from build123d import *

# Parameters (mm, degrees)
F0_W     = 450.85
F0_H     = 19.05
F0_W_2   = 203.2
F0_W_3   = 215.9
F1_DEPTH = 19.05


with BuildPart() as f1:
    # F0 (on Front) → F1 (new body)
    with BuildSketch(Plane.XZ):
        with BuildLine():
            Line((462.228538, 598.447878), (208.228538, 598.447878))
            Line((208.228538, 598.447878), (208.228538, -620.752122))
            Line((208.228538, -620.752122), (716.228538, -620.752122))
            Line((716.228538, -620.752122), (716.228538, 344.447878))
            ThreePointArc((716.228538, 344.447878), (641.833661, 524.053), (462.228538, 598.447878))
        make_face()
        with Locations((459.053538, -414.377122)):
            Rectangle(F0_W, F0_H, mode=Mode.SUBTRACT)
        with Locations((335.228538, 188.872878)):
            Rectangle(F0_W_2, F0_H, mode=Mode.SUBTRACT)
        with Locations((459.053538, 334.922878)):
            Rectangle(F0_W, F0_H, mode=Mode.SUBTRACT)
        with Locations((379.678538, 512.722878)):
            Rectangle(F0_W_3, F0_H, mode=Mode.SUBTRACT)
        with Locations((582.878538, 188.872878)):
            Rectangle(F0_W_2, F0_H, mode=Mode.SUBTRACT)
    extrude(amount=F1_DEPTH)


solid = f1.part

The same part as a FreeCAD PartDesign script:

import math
import FreeCAD as App
import Part
import Sketcher
from FreeCAD import Vector
Q = App.Units.Quantity

doc = App.newDocument("Part")
params = doc.addObject("Spreadsheet::Sheet", "Params")
for row, (alias, value) in enumerate([
    ("sketch1_radius", "10 in"),
    ("sketch1_width", "10 in"),
    ("sketch1_width2", "8 in"),
    ("sketch1_height", "48 in"),
    ("sketch1_width3", "8.5 in"),
    ("pad1_length", "0.75 in"),
], start=1):
    params.set(f"A{row}", alias)
    params.set(f"B{row}", "=" + value)
    params.setAlias(f"B{row}", alias)

body = doc.addObject("PartDesign::Body", "Body")

sketch1 = body.newObject("Sketcher::SketchObject", "Sketch")
sketch1.AttachmentSupport = (doc.getObject("XZ_Plane"), [""])
sketch1.MapMode = "FlatFace"
sketch1.addGeometry(Part.LineSegment(Vector(462, 598, 0), Vector(208, 598, 0)), False)
sketch1.addGeometry(Part.LineSegment(Vector(208, 598, 0), Vector(208, -621, 0)), False)
sketch1.addGeometry(Part.LineSegment(Vector(208, -621, 0), Vector(716, -621, 0)), False)
sketch1.addGeometry(Part.LineSegment(Vector(716, -621, 0), Vector(716, 344, 0)), False)
sketch1.addGeometry(Part.ArcOfCircle(Part.Circle(Vector(462, 344, 0), Vector(0, 0, 1), 254), math.radians(0), math.radians(90)), False)
sketch1.addGeometry(Part.LineSegment(Vector(684, -424, 0), Vector(234, -424, 0)), False)
sketch1.addGeometry(Part.LineSegment(Vector(234, -424, 0), Vector(234, -405, 0)), False)
sketch1.addGeometry(Part.LineSegment(Vector(234, -405, 0), Vector(684, -405, 0)), False)
sketch1.addGeometry(Part.LineSegment(Vector(684, -405, 0), Vector(684, -424, 0)), False)
sketch1.addGeometry(Part.LineSegment(Vector(437, 179, 0), Vector(234, 179, 0)), False)
sketch1.addGeometry(Part.LineSegment(Vector(234, 179, 0), Vector(234, 198, 0)), False)
sketch1.addGeometry(Part.LineSegment(Vector(234, 198, 0), Vector(437, 198, 0)), False)
sketch1.addGeometry(Part.LineSegment(Vector(437, 198, 0), Vector(437, 179, 0)), False)
sketch1.addGeometry(Part.LineSegment(Vector(488, 503, 0), Vector(272, 503, 0)), False)
sketch1.addGeometry(Part.LineSegment(Vector(272, 503, 0), Vector(272, 522, 0)), False)
sketch1.addGeometry(Part.LineSegment(Vector(272, 522, 0), Vector(488, 522, 0)), False)
sketch1.addGeometry(Part.LineSegment(Vector(488, 522, 0), Vector(488, 503, 0)), False)
sketch1.addGeometry(Part.LineSegment(Vector(684, 179, 0), Vector(481, 179, 0)), False)
sketch1.addGeometry(Part.LineSegment(Vector(481, 179, 0), Vector(481, 198, 0)), False)
sketch1.addGeometry(Part.LineSegment(Vector(481, 198, 0), Vector(684, 198, 0)), False)
sketch1.addGeometry(Part.LineSegment(Vector(684, 198, 0), Vector(684, 179, 0)), False)
sketch1.addGeometry(Part.LineSegment(Vector(684, 325, 0), Vector(234, 325, 0)), False)
sketch1.addGeometry(Part.LineSegment(Vector(234, 325, 0), Vector(234, 344, 0)), False)
sketch1.addGeometry(Part.LineSegment(Vector(234, 344, 0), Vector(684, 344, 0)), False)
sketch1.addGeometry(Part.LineSegment(Vector(684, 344, 0), Vector(684, 325, 0)), False)
sketch1.addConstraint(Sketcher.Constraint("Coincident", 0, 2, 1, 1))
sketch1.addConstraint(Sketcher.Constraint("Coincident", 1, 2, 2, 1))
sketch1.addConstraint(Sketcher.Constraint("Coincident", 2, 2, 3, 1))
sketch1.addConstraint(Sketcher.Constraint("Tangent", 3, 2, 4, 1))
sketch1.addConstraint(Sketcher.Constraint("Tangent", 4, 2, 0, 1))
sketch1.addConstraint(Sketcher.Constraint("Coincident", 5, 2, 6, 1))
sketch1.addConstraint(Sketcher.Constraint("Coincident", 6, 2, 7, 1))
sketch1.addConstraint(Sketcher.Constraint("Coincident", 7, 2, 8, 1))
sketch1.addConstraint(Sketcher.Constraint("Coincident", 8, 2, 5, 1))
sketch1.addConstraint(Sketcher.Constraint("Coincident", 9, 2, 10, 1))
sketch1.addConstraint(Sketcher.Constraint("Coincident", 10, 2, 11, 1))
sketch1.addConstraint(Sketcher.Constraint("Coincident", 11, 2, 12, 1))
sketch1.addConstraint(Sketcher.Constraint("Coincident", 12, 2, 9, 1))
sketch1.addConstraint(Sketcher.Constraint("Coincident", 13, 2, 14, 1))
sketch1.addConstraint(Sketcher.Constraint("Coincident", 14, 2, 15, 1))
sketch1.addConstraint(Sketcher.Constraint("Coincident", 15, 2, 16, 1))
sketch1.addConstraint(Sketcher.Constraint("Coincident", 16, 2, 13, 1))
sketch1.addConstraint(Sketcher.Constraint("Coincident", 17, 2, 18, 1))
sketch1.addConstraint(Sketcher.Constraint("Coincident", 18, 2, 19, 1))
sketch1.addConstraint(Sketcher.Constraint("Coincident", 19, 2, 20, 1))
sketch1.addConstraint(Sketcher.Constraint("Coincident", 20, 2, 17, 1))
sketch1.addConstraint(Sketcher.Constraint("Coincident", 21, 2, 22, 1))
sketch1.addConstraint(Sketcher.Constraint("Coincident", 22, 2, 23, 1))
sketch1.addConstraint(Sketcher.Constraint("Coincident", 23, 2, 24, 1))
sketch1.addConstraint(Sketcher.Constraint("Coincident", 24, 2, 21, 1))
sketch1.addConstraint(Sketcher.Constraint("Horizontal", 0))
sketch1.addConstraint(Sketcher.Constraint("Vertical", 1))
sketch1.addConstraint(Sketcher.Constraint("Horizontal", 2))
sketch1.addConstraint(Sketcher.Constraint("Vertical", 3))
sketch1.addConstraint(Sketcher.Constraint("Horizontal", 5))
sketch1.addConstraint(Sketcher.Constraint("Vertical", 6))
sketch1.addConstraint(Sketcher.Constraint("Horizontal", 7))
sketch1.addConstraint(Sketcher.Constraint("Vertical", 8))
sketch1.addConstraint(Sketcher.Constraint("Horizontal", 9))
sketch1.addConstraint(Sketcher.Constraint("Vertical", 10))
sketch1.addConstraint(Sketcher.Constraint("Horizontal", 11))
sketch1.addConstraint(Sketcher.Constraint("Vertical", 12))
sketch1.addConstraint(Sketcher.Constraint("Horizontal", 13))
sketch1.addConstraint(Sketcher.Constraint("Vertical", 14))
sketch1.addConstraint(Sketcher.Constraint("Horizontal", 15))
sketch1.addConstraint(Sketcher.Constraint("Vertical", 16))
sketch1.addConstraint(Sketcher.Constraint("Horizontal", 17))
sketch1.addConstraint(Sketcher.Constraint("Vertical", 18))
sketch1.addConstraint(Sketcher.Constraint("Horizontal", 19))
sketch1.addConstraint(Sketcher.Constraint("Vertical", 20))
sketch1.addConstraint(Sketcher.Constraint("Horizontal", 21))
sketch1.addConstraint(Sketcher.Constraint("Vertical", 22))
sketch1.addConstraint(Sketcher.Constraint("Horizontal", 23))
sketch1.addConstraint(Sketcher.Constraint("Vertical", 24))
sketch1.addConstraint(Sketcher.Constraint("Horizontal", 12, 2, 17, 2))
sketch1.addConstraint(Sketcher.Constraint("Horizontal", 11, 2, 18, 2))
sketch1.addConstraint(Sketcher.Constraint("Horizontal", 3, 2, 22, 2))
sketch1.addConstraint(Sketcher.Constraint("Vertical", 6, 2, 9, 2))
sketch1.addConstraint(Sketcher.Constraint("Vertical", 8, 2, 19, 2))
sketch1.addConstraint(Sketcher.Constraint("Vertical", 10, 2, 21, 2))
sketch1.addConstraint(Sketcher.Constraint("Vertical", 20, 2, 23, 2))
sketch1.addConstraint(Sketcher.Constraint("Equal", 11, 17))
sketch1.addConstraint(Sketcher.Constraint("Equal", 8, 10))
sketch1.addConstraint(Sketcher.Constraint("Equal", 12, 14))
sketch1.addConstraint(Sketcher.Constraint("Equal", 20, 22))
sketch1.addConstraint(Sketcher.Constraint("Radius", 4, Q("10 in")))
sketch1.addConstraint(Sketcher.Constraint("DistanceX", 0, 2, 0, 1, Q("10 in")))
sketch1.addConstraint(Sketcher.Constraint("DistanceX", 9, 2, 9, 1, Q("8 in")))
sketch1.addConstraint(Sketcher.Constraint("DistanceY", 1, 2, 1, 1, Q("48 in")))
sketch1.addConstraint(Sketcher.Constraint("DistanceX", 13, 2, 13, 1, Q("8.5 in")))
sketch1.addConstraint(Sketcher.Constraint("DistanceX", 1, 2, 5, 2, Q("1 in")))
sketch1.addConstraint(Sketcher.Constraint("DistanceY", 6, 2, 9, 2, Q("23 in")))
sketch1.addConstraint(Sketcher.Constraint("DistanceY", 10, 2, 13, 2, Q("12 in")))
sketch1.addConstraint(Sketcher.Constraint("DistanceY", 14, 2, 0, 2, Q("3 in")))
sketch1.addConstraint(Sketcher.Constraint("DistanceX", 4, 3, 15, 2, Q("1 in")))
sketch1.addConstraint(Sketcher.Constraint("DistanceX", 5, 2, 5, 1, Q("17.75 in")))
sketch1.addConstraint(Sketcher.Constraint("DistanceY", 6, 1, 6, 2, Q("0.75 in")))
sketch1.addConstraint(Sketcher.Constraint("DistanceX", -1, 1, 4, 3, 462.228538))
sketch1.addConstraint(Sketcher.Constraint("DistanceY", -1, 1, 4, 3, 344.447878))
sketch1.setExpression("Constraints[60]", "Params.sketch1_radius")
sketch1.setExpression("Constraints[61]", "Params.sketch1_width")
sketch1.setExpression("Constraints[62]", "Params.sketch1_width2")
sketch1.setExpression("Constraints[63]", "Params.sketch1_height")
sketch1.setExpression("Constraints[64]", "Params.sketch1_width3")
pad1 = body.newObject("PartDesign::Pad", "Pad")
pad1.Profile = sketch1
pad1.setExpression("Length", "Params.pad1_length")

doc.recompute()
